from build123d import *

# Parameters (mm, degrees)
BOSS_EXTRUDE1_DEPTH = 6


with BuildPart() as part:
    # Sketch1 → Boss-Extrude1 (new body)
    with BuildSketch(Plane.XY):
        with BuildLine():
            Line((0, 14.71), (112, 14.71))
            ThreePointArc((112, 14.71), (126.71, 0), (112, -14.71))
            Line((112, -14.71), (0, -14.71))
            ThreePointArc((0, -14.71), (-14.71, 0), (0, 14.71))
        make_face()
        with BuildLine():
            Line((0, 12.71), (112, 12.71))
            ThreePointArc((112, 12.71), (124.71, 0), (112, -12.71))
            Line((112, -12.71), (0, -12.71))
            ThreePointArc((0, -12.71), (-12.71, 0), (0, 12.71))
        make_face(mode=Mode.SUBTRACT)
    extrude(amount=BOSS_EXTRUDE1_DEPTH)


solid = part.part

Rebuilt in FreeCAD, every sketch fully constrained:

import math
import FreeCAD as App
import Part
import Sketcher
from FreeCAD import Vector

doc = App.newDocument("Part")
params = doc.addObject("Spreadsheet::Sheet", "Params")
for row, (alias, value) in enumerate([
    ("sketch1_width", "112 mm"),
    ("sketch1_radius", "14.71 mm"),
    ("sketch1_radius2", "12.71 mm"),
    ("pad1_length", "6 mm"),
], start=1):
    params.set(f"A{row}", alias)
    params.set(f"B{row}", "=" + value)
    params.setAlias(f"B{row}", alias)

body = doc.addObject("PartDesign::Body", "Body")

# Sketch on XY plane
sketch1 = body.newObject("Sketcher::SketchObject", "Sketch")
sketch1.AttachmentSupport = (doc.getObject("XY_Plane"), [""])
sketch1.MapMode = "FlatFace"
sketch1.addGeometry([
    Part.LineSegment(Vector(112, 14.71, 0), Vector(0, 14.71, 0)),  # 0
    Part.ArcOfCircle(Part.Circle(Vector(0, 0, 0), Vector(0, 0, 1), 14.71), math.radians(90), math.radians(270)),  # 1
    Part.LineSegment(Vector(0, -14.71, 0), Vector(112, -14.71, 0)),  # 2
    Part.ArcOfCircle(Part.Circle(Vector(112, 0, 0), Vector(0, 0, 1), 14.71), math.radians(-90), math.radians(90)),  # 3
    Part.LineSegment(Vector(0, 12.71, 0), Vector(112, 12.71, 0)),  # 4
    Part.ArcOfCircle(Part.Circle(Vector(112, 0, 0), Vector(0, 0, 1), 12.71), math.radians(-90), math.radians(90)),  # 5
    Part.LineSegment(Vector(112, -12.71, 0), Vector(0, -12.71, 0)),  # 6
    Part.ArcOfCircle(Part.Circle(Vector(0, 0, 0), Vector(0, 0, 1), 12.71), math.radians(90), math.radians(270)),  # 7
], False)
sketch1.addConstraint([
    Sketcher.Constraint("Tangent", 0, 2, 1, 1),
    Sketcher.Constraint("Tangent", 1, 2, 2, 1),
    Sketcher.Constraint("Tangent", 2, 2, 3, 1),
    Sketcher.Constraint("Tangent", 3, 2, 0, 1),
    Sketcher.Constraint("Tangent", 4, 2, 5, 2),
    Sketcher.Constraint("Tangent", 5, 1, 6, 1),
    Sketcher.Constraint("Tangent", 6, 2, 7, 2),
    Sketcher.Constraint("Tangent", 7, 1, 4, 1),
    Sketcher.Constraint("Horizontal", 0),
    Sketcher.Constraint("Horizontal", 2),
    Sketcher.Constraint("Horizontal", 4),
    Sketcher.Constraint("Horizontal", 6),
    Sketcher.Constraint("Coincident", 1, 3, -1, 1),
    Sketcher.Constraint("Coincident", 7, 3, -1, 1),
    Sketcher.Constraint("Vertical", 5, 3, 2, 2),
    Sketcher.Constraint("DistanceX", 0, 2, 0, 1, 112.0),
    Sketcher.Constraint("Radius", 1, 14.71),
    Sketcher.Constraint("Radius", 5, 12.71),
])
sketch1.setExpression("Constraints[15]", "Params.sketch1_width")
sketch1.setExpression("Constraints[16]", "Params.sketch1_radius")
sketch1.setExpression("Constraints[17]", "Params.sketch1_radius2")
pad1 = body.newObject("PartDesign::Pad", "Pad")
pad1.Profile = sketch1
pad1.setExpression("Length", "Params.pad1_length")

doc.recompute()
